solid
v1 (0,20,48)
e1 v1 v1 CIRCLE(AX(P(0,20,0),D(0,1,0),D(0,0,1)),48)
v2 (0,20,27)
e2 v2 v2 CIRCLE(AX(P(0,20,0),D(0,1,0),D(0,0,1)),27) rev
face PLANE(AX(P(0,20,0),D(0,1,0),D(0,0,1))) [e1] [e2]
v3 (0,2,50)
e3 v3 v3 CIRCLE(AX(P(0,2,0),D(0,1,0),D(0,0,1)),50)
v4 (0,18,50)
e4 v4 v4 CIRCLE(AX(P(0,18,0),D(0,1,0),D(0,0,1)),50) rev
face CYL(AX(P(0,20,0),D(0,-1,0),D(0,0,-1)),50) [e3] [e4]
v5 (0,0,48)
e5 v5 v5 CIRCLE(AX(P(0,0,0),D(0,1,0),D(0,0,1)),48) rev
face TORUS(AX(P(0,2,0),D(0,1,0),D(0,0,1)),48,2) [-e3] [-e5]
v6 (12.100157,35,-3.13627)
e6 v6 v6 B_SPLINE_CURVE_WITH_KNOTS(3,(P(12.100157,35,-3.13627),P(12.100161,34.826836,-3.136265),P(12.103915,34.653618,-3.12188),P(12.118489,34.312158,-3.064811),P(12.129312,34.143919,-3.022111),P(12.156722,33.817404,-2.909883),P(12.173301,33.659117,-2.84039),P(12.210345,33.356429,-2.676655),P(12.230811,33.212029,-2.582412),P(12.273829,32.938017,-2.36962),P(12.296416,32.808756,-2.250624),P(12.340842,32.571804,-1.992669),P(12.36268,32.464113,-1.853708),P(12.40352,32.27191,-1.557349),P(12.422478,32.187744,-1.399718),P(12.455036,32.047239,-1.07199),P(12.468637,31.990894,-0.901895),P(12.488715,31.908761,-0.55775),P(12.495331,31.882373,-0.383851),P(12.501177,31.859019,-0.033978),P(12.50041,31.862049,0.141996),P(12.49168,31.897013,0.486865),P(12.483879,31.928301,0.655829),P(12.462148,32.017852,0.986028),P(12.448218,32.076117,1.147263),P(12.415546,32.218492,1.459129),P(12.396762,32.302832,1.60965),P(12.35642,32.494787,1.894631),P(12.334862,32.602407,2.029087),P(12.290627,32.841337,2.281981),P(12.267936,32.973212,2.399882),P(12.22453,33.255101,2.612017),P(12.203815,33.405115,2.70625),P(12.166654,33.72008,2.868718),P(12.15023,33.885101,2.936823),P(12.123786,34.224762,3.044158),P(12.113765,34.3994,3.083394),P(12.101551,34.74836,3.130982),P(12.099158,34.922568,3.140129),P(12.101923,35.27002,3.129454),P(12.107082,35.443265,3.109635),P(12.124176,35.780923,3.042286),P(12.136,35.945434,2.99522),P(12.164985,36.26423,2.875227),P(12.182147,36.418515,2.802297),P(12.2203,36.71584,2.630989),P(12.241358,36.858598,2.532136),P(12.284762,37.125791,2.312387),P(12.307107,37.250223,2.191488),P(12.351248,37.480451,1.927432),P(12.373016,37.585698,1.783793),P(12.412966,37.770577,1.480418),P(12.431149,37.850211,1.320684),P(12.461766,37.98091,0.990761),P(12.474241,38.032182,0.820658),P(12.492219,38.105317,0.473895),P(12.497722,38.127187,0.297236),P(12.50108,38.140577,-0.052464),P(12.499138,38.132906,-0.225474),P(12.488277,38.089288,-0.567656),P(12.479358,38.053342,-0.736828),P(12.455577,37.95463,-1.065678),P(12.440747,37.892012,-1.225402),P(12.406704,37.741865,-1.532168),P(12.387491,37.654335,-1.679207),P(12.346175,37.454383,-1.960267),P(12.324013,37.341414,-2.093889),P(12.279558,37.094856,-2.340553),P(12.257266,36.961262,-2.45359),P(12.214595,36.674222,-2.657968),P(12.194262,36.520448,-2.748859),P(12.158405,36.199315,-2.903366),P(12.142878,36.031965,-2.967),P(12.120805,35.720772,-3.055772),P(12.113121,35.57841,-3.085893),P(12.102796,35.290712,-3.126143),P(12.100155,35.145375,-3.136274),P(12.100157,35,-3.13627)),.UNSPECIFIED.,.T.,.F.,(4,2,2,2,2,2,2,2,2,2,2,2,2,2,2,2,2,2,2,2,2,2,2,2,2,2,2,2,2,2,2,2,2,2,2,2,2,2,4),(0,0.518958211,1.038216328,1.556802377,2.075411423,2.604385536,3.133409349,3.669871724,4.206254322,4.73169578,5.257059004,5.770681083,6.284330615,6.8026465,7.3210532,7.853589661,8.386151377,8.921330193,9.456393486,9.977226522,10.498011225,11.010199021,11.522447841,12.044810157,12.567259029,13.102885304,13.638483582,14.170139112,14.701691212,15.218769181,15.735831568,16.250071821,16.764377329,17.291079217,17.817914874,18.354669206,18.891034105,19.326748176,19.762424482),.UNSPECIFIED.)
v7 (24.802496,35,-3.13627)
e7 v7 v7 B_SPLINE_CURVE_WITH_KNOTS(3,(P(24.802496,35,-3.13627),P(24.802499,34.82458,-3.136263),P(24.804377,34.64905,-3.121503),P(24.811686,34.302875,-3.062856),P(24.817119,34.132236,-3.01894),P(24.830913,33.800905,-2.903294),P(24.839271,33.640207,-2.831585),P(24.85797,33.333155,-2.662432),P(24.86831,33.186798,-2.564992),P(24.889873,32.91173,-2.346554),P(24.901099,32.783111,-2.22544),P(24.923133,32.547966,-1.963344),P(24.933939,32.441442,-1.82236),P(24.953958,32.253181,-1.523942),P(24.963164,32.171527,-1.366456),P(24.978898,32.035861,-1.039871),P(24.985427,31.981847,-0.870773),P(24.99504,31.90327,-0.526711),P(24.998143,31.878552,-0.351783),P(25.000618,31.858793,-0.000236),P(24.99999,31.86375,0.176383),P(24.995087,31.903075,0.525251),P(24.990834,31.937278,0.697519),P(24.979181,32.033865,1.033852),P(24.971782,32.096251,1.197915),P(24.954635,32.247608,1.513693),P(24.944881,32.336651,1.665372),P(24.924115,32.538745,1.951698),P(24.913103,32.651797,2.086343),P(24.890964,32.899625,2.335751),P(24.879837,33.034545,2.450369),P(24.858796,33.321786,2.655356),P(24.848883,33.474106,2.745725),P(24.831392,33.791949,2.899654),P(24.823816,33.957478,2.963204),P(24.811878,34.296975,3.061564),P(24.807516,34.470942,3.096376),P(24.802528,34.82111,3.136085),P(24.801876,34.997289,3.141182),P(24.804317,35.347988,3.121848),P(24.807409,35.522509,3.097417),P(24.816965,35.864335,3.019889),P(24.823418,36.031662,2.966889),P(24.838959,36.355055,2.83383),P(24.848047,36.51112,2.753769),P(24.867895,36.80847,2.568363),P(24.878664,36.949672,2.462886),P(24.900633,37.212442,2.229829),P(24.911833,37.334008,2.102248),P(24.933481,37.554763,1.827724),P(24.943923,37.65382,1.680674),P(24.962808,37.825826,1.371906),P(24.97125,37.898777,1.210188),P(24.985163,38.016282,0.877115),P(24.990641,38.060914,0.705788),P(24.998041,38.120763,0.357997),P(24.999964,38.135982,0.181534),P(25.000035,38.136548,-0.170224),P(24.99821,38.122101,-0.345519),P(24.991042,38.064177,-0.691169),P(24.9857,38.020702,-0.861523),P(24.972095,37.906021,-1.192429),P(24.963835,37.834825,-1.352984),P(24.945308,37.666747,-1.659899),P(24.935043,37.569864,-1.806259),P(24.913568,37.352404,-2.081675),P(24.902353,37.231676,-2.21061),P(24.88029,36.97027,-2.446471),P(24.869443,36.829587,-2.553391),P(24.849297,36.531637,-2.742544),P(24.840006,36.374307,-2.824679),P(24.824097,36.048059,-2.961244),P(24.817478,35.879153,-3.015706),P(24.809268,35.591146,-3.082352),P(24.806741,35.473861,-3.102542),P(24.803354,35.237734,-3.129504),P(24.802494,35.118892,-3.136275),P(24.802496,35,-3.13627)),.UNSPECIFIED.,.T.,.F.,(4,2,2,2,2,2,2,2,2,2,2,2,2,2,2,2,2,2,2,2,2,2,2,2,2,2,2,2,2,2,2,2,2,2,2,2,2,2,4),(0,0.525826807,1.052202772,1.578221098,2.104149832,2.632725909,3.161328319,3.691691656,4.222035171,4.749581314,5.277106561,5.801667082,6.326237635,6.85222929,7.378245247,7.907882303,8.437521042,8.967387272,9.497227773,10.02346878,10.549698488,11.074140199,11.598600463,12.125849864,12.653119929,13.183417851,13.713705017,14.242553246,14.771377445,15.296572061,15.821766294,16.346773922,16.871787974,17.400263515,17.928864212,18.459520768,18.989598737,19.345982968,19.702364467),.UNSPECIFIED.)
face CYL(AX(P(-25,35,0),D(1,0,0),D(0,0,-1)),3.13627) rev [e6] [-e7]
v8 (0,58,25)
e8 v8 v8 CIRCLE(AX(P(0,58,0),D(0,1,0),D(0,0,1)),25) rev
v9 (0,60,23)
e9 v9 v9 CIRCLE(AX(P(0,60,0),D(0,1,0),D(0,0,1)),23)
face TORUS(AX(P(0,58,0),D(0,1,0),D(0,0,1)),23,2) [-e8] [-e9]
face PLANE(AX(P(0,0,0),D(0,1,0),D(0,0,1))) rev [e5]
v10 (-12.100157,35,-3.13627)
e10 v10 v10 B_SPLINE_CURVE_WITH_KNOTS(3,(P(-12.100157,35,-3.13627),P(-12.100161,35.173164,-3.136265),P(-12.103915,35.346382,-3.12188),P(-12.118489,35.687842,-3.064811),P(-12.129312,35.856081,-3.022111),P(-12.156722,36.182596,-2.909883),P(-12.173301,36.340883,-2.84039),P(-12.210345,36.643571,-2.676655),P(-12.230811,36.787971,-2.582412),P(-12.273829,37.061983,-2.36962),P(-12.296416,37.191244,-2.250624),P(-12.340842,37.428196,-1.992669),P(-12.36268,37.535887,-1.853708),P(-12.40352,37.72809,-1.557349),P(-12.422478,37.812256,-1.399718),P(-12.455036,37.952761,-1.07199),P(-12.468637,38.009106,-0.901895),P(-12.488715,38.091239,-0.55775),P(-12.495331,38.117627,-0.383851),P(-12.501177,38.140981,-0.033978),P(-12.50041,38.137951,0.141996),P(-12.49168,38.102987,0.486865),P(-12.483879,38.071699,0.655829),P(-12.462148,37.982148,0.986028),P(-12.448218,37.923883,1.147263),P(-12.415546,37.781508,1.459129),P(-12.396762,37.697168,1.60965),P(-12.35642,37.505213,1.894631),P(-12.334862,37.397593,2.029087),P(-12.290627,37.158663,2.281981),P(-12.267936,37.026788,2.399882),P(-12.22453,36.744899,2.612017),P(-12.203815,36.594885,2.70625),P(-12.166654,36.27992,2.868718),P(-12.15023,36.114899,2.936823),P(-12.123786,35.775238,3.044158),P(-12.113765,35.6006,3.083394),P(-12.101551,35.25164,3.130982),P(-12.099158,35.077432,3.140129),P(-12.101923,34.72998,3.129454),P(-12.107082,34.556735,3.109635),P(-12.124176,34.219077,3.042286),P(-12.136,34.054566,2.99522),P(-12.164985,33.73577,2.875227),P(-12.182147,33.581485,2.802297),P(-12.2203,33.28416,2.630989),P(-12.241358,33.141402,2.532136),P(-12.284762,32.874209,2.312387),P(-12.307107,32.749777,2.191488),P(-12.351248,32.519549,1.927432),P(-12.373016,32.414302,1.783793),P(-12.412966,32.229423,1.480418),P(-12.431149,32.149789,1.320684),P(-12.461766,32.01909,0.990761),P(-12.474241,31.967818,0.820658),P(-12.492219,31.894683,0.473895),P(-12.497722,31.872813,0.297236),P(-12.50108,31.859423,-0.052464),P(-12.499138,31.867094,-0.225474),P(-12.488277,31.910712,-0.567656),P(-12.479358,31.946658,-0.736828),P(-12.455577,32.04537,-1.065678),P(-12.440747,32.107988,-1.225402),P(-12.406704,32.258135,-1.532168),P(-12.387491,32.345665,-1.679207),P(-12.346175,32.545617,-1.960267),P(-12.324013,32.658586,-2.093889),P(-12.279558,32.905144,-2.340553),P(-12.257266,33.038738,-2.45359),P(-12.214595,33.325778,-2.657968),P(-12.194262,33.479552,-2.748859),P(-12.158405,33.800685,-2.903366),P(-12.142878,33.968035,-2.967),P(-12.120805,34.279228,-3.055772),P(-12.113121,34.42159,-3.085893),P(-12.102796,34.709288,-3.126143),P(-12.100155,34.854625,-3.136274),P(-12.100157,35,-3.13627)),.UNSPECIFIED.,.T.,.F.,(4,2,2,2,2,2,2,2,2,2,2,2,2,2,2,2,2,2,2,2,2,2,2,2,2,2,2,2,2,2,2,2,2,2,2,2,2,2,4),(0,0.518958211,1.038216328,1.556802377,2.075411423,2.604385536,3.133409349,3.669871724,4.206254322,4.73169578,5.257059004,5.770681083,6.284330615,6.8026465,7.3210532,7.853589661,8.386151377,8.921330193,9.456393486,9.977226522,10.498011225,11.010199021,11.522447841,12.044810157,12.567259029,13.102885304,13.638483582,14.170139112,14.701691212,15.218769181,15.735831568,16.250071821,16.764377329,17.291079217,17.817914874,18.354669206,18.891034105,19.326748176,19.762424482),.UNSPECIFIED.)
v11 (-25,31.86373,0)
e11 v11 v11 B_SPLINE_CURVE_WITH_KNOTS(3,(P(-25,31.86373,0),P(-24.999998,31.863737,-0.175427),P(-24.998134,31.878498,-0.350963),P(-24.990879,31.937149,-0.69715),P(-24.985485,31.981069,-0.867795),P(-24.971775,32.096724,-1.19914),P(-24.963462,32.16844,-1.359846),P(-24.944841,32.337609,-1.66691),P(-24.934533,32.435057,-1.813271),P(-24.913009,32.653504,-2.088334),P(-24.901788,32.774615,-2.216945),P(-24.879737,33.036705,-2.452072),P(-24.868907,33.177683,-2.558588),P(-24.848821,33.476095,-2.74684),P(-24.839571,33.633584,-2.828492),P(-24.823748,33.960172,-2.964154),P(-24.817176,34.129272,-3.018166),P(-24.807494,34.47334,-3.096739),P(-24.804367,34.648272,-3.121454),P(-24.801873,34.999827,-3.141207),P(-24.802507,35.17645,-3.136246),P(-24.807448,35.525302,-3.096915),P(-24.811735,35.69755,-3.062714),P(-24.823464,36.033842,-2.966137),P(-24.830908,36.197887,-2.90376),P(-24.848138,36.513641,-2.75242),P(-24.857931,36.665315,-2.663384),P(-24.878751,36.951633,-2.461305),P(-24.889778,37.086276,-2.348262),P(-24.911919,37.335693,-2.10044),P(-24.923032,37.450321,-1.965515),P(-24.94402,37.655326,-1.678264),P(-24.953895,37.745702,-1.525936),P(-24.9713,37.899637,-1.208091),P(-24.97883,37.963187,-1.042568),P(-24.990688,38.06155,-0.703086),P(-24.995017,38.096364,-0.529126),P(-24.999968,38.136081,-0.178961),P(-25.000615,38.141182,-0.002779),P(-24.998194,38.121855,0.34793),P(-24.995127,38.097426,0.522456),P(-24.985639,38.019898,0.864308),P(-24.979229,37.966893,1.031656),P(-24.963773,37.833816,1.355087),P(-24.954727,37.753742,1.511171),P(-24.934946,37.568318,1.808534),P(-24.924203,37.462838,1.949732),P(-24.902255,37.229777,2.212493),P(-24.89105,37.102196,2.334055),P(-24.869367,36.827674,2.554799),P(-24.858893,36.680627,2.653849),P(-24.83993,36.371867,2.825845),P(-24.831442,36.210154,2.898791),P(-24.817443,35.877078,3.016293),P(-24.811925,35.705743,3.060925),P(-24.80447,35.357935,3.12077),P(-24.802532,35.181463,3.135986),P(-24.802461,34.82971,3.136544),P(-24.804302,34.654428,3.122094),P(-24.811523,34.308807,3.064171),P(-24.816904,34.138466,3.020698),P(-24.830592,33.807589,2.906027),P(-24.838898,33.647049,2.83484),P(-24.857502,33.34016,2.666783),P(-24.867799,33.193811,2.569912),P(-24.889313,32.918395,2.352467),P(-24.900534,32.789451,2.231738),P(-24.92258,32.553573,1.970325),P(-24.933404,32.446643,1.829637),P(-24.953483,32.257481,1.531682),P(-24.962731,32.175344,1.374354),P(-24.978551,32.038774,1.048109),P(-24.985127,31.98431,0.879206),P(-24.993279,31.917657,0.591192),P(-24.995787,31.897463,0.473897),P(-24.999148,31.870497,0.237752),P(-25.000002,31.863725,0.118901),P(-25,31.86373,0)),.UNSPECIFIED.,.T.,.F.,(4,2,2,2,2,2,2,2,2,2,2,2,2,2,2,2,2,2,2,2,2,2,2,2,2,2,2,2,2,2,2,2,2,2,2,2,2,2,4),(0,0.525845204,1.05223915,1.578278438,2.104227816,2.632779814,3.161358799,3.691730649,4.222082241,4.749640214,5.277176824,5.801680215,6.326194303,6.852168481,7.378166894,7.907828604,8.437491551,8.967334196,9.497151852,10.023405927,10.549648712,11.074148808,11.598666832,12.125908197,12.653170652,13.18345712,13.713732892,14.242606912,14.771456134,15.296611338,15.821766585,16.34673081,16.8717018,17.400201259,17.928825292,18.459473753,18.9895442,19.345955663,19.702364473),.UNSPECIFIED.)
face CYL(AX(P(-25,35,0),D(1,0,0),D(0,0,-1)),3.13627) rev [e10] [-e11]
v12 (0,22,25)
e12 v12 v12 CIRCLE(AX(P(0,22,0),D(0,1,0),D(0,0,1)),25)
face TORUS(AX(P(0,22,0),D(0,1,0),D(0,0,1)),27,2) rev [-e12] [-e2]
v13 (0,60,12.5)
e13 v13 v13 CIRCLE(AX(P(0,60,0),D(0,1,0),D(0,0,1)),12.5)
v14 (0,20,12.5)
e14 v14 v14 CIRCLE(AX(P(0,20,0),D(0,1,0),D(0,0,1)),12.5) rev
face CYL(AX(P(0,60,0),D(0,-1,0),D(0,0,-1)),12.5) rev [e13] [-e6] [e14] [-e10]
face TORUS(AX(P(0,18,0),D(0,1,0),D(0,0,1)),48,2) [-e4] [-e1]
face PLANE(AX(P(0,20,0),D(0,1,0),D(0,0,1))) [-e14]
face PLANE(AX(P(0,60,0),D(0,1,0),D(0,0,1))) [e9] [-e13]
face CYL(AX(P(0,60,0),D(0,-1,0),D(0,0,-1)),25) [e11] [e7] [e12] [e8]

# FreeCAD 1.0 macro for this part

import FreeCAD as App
import Part
import Sketcher
Q = App.Units.Quantity


def edges_at(feature, points):
    """Names of the edges that pass closest to the given points."""
    edges = feature.Shape.Edges
    near = lambda p: min(range(len(edges)), key=lambda i: edges[i].distToShape(Part.Vertex(*p))[0])
    return sorted({f"Edge{near(p) + 1}" for p in points})

doc = App.newDocument("Part")
params = doc.addObject("Spreadsheet::Sheet", "Params")
for row, (alias, value) in enumerate([
    ("sketch1_diameter", "100 mm"),
    ("pad1_length", "20 mm"),
    ("sketch2_diameter", "50 mm"),
    ("sketch2_diameter2", "25 mm"),
    ("pad2_length", "40 mm"),
    ("fillet_radius", "2 mm"),
    ("fillet2_radius", "2 mm"),
    ("pocket1_length", "50 mm"),
], start=1):
    params.set(f"A{row}", alias)
    params.set(f"B{row}", "=" + value)
    params.setAlias(f"B{row}", alias)

body = doc.addObject("PartDesign::Body", "Body")

sketch1 = body.newObject("Sketcher::SketchObject", "Sketch")
sketch1.AttachmentSupport = (doc.getObject("XZ_Plane"), [""])
sketch1.MapMode = "FlatFace"
sketch1.addGeometry(Part.Circle(App.Vector(0, 0, 0), App.Vector(0, 0, 1), 50), False)
sketch1.addConstraint([
    Sketcher.Constraint("Coincident", 0, 3, -1, 1),
    Sketcher.Constraint("Diameter", 0, Q("100 mm")),
])
sketch1.setExpression("Constraints[1]", "Params.sketch1_diameter")
pad1 = body.newObject("PartDesign::Pad", "Pad")
pad1.Profile = sketch1
pad1.setExpression("Length", "Params.pad1_length")
pad1.Reversed = True

sketch2 = body.newObject("Sketcher::SketchObject", "Sketch001")
sketch2.AttachmentSupport = (doc.getObject("XZ_Plane"), [""])
sketch2.MapMode = "FlatFace"
sketch2.AttachmentOffset = App.Placement(App.Vector(0, 0, -20), App.Rotation())
sketch2.addGeometry([
    Part.Circle(App.Vector(0, 0, 0), App.Vector(0, 0, 1), 25),
    Part.Circle(App.Vector(0, 0, 0), App.Vector(0, 0, 1), 12),
], False)
sketch2.addConstraint([
    Sketcher.Constraint("Coincident", 0, 3, -1, 1),
    Sketcher.Constraint("Coincident", 1, 3, -1, 1),
    Sketcher.Constraint("Diameter", 0, Q("50 mm")),
    Sketcher.Constraint("Diameter", 1, Q("25 mm")),
])
sketch2.setExpression("Constraints[2]", "Params.sketch2_diameter")
sketch2.setExpression("Constraints[3]", "Params.sketch2_diameter2")
pad2 = body.newObject("PartDesign::Pad", "Pad001")
pad2.Profile = sketch2
pad2.setExpression("Length", "Params.pad2_length")
pad2.Reversed = True
doc.recompute()

fillet = body.newObject("PartDesign::Fillet", "Fillet")
fillet.Base = (pad2, edges_at(pad2, [(0, 0, -50)]))
fillet.setExpression("Radius", "Params.fillet_radius")
doc.recompute()

fillet2 = body.newObject("PartDesign::Fillet", "Fillet001")
fillet2.Base = (fillet, edges_at(fillet, [(0, 20, -50), (0, 60, -25), (0, 20, -25)]))
fillet2.setExpression("Radius", "Params.fillet2_radius")

sketch3 = body.newObject("Sketcher::SketchObject", "Sketch002")
sketch3.AttachmentSupport = (doc.getObject("YZ_Plane"), [""])
sketch3.MapMode = "FlatFace"
sketch3.addGeometry(Part.Circle(App.Vector(35, 0, 0), App.Vector(0, 0, 1), 3.1), False)
sketch3.addConstraint([
    Sketcher.Constraint("PointOnObject", 0, 3, -1),
    Sketcher.Constraint("DistanceX", -1, 1, 0, 3, Q("35 mm")),
    Sketcher.Constraint("Diameter", 0, Q("6.27254 mm")),
])
pocket1 = body.newObject("PartDesign::Pocket", "Pocket")
pocket1.Profile = sketch3
pocket1.setExpression("Length", "Params.pocket1_length")
pocket1.Midplane = True

doc.recompute()
